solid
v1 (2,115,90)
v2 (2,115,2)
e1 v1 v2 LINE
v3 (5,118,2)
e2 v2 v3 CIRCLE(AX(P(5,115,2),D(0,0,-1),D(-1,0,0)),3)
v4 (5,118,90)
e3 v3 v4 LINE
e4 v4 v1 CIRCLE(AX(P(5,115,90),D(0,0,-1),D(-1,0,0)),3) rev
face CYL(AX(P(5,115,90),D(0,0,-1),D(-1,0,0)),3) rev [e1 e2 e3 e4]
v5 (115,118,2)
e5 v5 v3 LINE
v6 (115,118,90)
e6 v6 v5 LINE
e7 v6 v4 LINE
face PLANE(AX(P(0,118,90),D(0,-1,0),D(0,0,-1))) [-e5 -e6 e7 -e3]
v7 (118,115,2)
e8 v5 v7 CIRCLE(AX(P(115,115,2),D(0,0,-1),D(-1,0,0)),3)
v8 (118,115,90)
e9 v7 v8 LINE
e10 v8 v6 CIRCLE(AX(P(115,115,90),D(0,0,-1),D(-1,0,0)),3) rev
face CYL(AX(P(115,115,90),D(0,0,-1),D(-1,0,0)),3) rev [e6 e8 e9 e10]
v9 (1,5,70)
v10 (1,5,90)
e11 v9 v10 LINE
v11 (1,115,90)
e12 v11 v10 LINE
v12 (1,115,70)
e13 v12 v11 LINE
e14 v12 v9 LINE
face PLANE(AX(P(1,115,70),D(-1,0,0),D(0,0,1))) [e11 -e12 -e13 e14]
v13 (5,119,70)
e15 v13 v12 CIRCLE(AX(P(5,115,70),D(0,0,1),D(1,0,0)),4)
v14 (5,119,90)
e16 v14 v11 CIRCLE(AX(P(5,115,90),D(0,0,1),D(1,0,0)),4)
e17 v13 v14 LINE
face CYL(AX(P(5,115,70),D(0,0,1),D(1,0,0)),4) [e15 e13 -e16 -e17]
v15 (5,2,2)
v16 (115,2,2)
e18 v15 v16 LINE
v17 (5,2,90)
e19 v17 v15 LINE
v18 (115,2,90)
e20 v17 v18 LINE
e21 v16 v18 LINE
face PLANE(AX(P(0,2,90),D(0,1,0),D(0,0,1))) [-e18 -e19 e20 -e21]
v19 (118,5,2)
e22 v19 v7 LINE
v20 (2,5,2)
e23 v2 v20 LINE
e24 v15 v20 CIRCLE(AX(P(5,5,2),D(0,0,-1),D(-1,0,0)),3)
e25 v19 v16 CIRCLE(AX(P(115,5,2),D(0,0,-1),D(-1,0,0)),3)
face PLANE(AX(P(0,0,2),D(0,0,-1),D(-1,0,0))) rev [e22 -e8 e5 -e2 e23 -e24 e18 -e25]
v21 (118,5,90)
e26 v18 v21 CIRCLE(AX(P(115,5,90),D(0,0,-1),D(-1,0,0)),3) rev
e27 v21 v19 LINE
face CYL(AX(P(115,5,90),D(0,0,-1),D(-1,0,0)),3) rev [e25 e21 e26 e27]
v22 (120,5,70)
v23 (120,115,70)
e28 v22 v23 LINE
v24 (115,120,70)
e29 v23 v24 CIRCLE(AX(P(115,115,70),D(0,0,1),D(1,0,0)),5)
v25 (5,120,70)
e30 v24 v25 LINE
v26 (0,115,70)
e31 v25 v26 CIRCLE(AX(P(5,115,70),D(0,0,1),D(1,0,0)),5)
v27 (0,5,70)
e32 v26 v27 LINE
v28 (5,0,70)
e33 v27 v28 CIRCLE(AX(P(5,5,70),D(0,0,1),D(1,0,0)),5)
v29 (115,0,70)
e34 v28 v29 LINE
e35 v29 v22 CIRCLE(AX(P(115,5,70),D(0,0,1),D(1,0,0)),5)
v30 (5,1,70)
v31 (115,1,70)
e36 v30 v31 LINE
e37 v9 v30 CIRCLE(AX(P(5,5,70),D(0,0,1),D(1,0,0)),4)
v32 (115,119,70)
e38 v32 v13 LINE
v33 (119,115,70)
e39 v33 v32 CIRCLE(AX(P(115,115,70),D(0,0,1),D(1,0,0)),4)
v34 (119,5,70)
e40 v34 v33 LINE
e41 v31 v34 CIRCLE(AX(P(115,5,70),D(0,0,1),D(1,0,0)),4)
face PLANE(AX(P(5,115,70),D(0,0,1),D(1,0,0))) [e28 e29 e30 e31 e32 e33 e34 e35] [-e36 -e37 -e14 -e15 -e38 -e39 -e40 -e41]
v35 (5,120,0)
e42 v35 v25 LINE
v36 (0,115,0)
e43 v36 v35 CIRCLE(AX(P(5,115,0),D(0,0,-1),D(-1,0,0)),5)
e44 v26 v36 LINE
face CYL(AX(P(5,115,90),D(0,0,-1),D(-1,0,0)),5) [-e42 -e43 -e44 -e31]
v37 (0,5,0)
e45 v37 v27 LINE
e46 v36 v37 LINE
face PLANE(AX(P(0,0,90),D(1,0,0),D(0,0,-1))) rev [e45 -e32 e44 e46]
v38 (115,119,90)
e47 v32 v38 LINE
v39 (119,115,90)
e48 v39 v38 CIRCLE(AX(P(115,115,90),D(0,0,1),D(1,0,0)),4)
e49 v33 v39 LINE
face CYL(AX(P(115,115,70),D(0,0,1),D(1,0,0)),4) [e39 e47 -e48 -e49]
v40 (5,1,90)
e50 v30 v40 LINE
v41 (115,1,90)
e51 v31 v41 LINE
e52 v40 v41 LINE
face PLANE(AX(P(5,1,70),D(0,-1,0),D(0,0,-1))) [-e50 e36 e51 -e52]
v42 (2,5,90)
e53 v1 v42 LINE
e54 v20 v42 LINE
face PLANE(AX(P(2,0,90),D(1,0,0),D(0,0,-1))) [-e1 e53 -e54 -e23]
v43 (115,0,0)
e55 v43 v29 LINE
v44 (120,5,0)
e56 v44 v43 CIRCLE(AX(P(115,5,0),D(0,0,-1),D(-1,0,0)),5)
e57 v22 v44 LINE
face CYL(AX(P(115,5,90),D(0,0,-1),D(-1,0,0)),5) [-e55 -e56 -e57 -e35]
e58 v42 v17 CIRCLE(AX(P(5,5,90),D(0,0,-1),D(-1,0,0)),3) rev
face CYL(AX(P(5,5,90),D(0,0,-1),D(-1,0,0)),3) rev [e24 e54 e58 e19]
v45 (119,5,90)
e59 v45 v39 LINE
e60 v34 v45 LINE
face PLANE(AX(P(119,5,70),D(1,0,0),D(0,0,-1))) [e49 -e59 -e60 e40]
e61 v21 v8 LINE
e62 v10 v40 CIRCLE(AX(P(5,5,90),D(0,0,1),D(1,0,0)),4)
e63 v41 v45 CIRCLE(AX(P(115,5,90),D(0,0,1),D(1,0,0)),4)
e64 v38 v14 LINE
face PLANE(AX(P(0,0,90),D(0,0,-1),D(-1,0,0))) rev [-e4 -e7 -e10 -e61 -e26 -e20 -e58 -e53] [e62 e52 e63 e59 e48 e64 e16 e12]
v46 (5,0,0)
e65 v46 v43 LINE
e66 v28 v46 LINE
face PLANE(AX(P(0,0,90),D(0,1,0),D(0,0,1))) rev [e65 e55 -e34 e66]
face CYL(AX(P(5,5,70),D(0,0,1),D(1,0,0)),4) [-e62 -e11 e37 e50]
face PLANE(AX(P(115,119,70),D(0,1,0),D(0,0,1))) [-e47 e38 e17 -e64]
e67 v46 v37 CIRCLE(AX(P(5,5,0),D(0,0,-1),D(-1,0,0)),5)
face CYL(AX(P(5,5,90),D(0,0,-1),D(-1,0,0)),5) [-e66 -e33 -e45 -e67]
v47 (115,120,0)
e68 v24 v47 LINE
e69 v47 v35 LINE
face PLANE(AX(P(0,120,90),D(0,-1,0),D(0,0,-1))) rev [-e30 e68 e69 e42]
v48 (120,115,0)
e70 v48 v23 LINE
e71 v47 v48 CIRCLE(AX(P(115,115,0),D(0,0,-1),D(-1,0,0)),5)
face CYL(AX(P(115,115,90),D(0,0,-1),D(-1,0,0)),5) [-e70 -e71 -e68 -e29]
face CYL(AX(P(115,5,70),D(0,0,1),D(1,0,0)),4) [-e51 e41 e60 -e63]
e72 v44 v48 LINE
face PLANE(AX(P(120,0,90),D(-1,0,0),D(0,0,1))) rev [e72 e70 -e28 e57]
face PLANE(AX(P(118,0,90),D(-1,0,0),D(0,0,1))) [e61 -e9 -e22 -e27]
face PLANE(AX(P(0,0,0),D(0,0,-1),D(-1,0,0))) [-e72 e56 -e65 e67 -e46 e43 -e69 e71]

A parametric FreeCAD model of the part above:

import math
import FreeCAD as App
import Part
import Sketcher

V = App.Vector


def edges_at(feature, points):
    """Names of the edges that pass closest to the given points."""
    edges = feature.Shape.Edges
    near = lambda p: min(range(len(edges)), key=lambda i: edges[i].distToShape(Part.Vertex(*p))[0])
    return sorted({f"Edge{near(p) + 1}" for p in points})


def faces_at(feature, points):
    """Names of the faces that lie closest to the given points."""
    faces = feature.Shape.Faces
    near = lambda p: min(range(len(faces)), key=lambda i: faces[i].distToShape(Part.Vertex(*p))[0])
    return sorted({f"Face{near(p) + 1}" for p in points})


def add_polygon(sketch, points):
    """Adds a closed chain of lines whose ends are joined by coincident constraints."""
    first, n = sketch.GeometryCount, len(points)
    for a, b in zip(points, points[1:] + points[:1]):
        sketch.addGeometry(Part.LineSegment(App.Vector(*a, 0), App.Vector(*b, 0)), False)
    for i in range(n):
        sketch.addConstraint(Sketcher.Constraint("Coincident", first + i, 2, first + (i + 1) % n, 1))

doc = App.newDocument("Part")
body = doc.addObject("PartDesign::Body", "Body")

# Sketch on XY plane
sketch1 = doc.addObject("Sketcher::SketchObject", "Sketch")
body.addObject(sketch1)
sketch1.AttachmentSupport = (doc.XY_Plane, [""])
sketch1.MapMode = "FlatFace"
add_polygon(sketch1, [(0, 120), (0, 0), (120, 0), (120, 120)])  # lines 0-3
sketch1.addConstraint(Sketcher.Constraint("Vertical", 0))
sketch1.addConstraint(Sketcher.Constraint("Horizontal", 1))
sketch1.addConstraint(Sketcher.Constraint("Vertical", 2))
sketch1.addConstraint(Sketcher.Constraint("Horizontal", 3))
sketch1.addConstraint(Sketcher.Constraint("Coincident", 0, 2, -1, 1))
sketch1.addConstraint(Sketcher.Constraint("Equal", 3, 0))
sketch1.addConstraint(Sketcher.Constraint("DistanceX", 1, 1, 1, 2, 120.0))
pad1 = doc.addObject("PartDesign::Pad", "Pad")
body.addObject(pad1)
pad1.Profile = sketch1
pad1.Length = 90
doc.recompute()

fillet = doc.addObject("PartDesign::Fillet", "Fillet")
body.addObject(fillet)
fillet.Base = (pad1, edges_at(pad1, [
    (0, 120, 45),
    (120, 120, 45),
    (120, 0, 45),
    (0, 0, 45),
]))
fillet.Radius = 5
doc.recompute()

thickness = doc.addObject("PartDesign::Thickness", "Thickness")
body.addObject(thickness)
thickness.Base = (fillet, faces_at(fillet, [(60, 60, 90)]))
thickness.Value = 2
thickness.Reversed = True
thickness.Join = "Intersection"

# Sketch on XY plane
sketch2 = doc.addObject("Sketcher::SketchObject", "Sketch001")
body.addObject(sketch2)
sketch2.AttachmentSupport = (doc.XY_Plane, [""])
sketch2.MapMode = "FlatFace"
sketch2.AttachmentOffset = App.Placement(V(0, 0, 90), App.Rotation())
sketch2.addGeometry(Part.LineSegment(V(0, 115, 0), V(0, 5, 0)), False)
sketch2.addGeometry(Part.ArcOfCircle(Part.Circle(V(5, 5, 0), V(0, 0, 1), 5), math.radians(180), math.radians(270)), False)
sketch2.addGeometry(Part.LineSegment(V(5, 0, 0), V(115, 0, 0)), False)
sketch2.addGeometry(Part.ArcOfCircle(Part.Circle(V(115, 5, 0), V(0, 0, 1), 5), math.radians(-90), math.radians(0)), False)
sketch2.addGeometry(Part.LineSegment(V(120, 5, 0), V(120, 115, 0)), False)
sketch2.addGeometry(Part.ArcOfCircle(Part.Circle(V(115, 115, 0), V(0, 0, 1), 5), math.radians(0), math.radians(90)), False)
sketch2.addGeometry(Part.LineSegment(V(115, 120, 0), V(5, 120, 0)), False)
sketch2.addGeometry(Part.ArcOfCircle(Part.Circle(V(5, 115, 0), V(0, 0, 1), 5), math.radians(90), math.radians(180)), False)
sketch2.addGeometry(Part.LineSegment(V(1, 5, 0), V(1, 115, 0)), False)
sketch2.addGeometry(Part.ArcOfCircle(Part.Circle(V(5, 115, 0), V(0, 0, 1), 4), math.radians(90), math.radians(180)), False)
sketch2.addGeometry(Part.LineSegment(V(5, 119, 0), V(115, 119, 0)), False)
sketch2.addGeometry(Part.ArcOfCircle(Part.Circle(V(115, 115, 0), V(0, 0, 1), 4), math.radians(0), math.radians(90)), False)
sketch2.addGeometry(Part.LineSegment(V(119, 115, 0), V(119, 5, 0)), False)
sketch2.addGeometry(Part.ArcOfCircle(Part.Circle(V(115, 5, 0), V(0, 0, 1), 4), math.radians(-90), math.radians(0)), False)
sketch2.addGeometry(Part.LineSegment(V(115, 1, 0), V(5, 1, 0)), False)
sketch2.addGeometry(Part.ArcOfCircle(Part.Circle(V(5, 5, 0), V(0, 0, 1), 4), math.radians(180), math.radians(270)), False)
sketch2.addConstraint(Sketcher.Constraint("Tangent", 0, 2, 1, 1))
sketch2.addConstraint(Sketcher.Constraint("Tangent", 1, 2, 2, 1))
sketch2.addConstraint(Sketcher.Constraint("Tangent", 2, 2, 3, 1))
sketch2.addConstraint(Sketcher.Constraint("Tangent", 3, 2, 4, 1))
sketch2.addConstraint(Sketcher.Constraint("Tangent", 4, 2, 5, 1))
sketch2.addConstraint(Sketcher.Constraint("Tangent", 5, 2, 6, 1))
sketch2.addConstraint(Sketcher.Constraint("Tangent", 6, 2, 7, 1))
sketch2.addConstraint(Sketcher.Constraint("Tangent", 7, 2, 0, 1))
sketch2.addConstraint(Sketcher.Constraint("Tangent", 8, 2, 9, 2))
sketch2.addConstraint(Sketcher.Constraint("Tangent", 9, 1, 10, 1))
sketch2.addConstraint(Sketcher.Constraint("Tangent", 10, 2, 11, 2))
sketch2.addConstraint(Sketcher.Constraint("Tangent", 11, 1, 12, 1))
sketch2.addConstraint(Sketcher.Constraint("Tangent", 12, 2, 13, 2))
sketch2.addConstraint(Sketcher.Constraint("Tangent", 13, 1, 14, 1))
sketch2.addConstraint(Sketcher.Constraint("Tangent", 14, 2, 15, 2))
sketch2.addConstraint(Sketcher.Constraint("Tangent", 15, 1, 8, 1))
sketch2.addConstraint(Sketcher.Constraint("Vertical", 0))
sketch2.addConstraint(Sketcher.Constraint("Horizontal", 2))
sketch2.addConstraint(Sketcher.Constraint("Vertical", 4))
sketch2.addConstraint(Sketcher.Constraint("Horizontal", 6))
sketch2.addConstraint(Sketcher.Constraint("Vertical", 8))
sketch2.addConstraint(Sketcher.Constraint("Horizontal", 10))
sketch2.addConstraint(Sketcher.Constraint("Vertical", 12))
sketch2.addConstraint(Sketcher.Constraint("Horizontal", 14))
sketch2.addConstraint(Sketcher.Constraint("Coincident", 9, 3, 7, 3))
sketch2.addConstraint(Sketcher.Constraint("Coincident", 11, 3, 5, 3))
sketch2.addConstraint(Sketcher.Constraint("Coincident", 13, 3, 3, 3))
sketch2.addConstraint(Sketcher.Constraint("Equal", 1, 3))
sketch2.addConstraint(Sketcher.Constraint("Equal", 3, 5))
sketch2.addConstraint(Sketcher.Constraint("Equal", 5, 7))
sketch2.addConstraint(Sketcher.Constraint("Equal", 13, 15))
sketch2.addConstraint(Sketcher.Constraint("PointOnObject", 0, 2, -2))
sketch2.addConstraint(Sketcher.Constraint("PointOnObject", 1, 2, -1))
sketch2.addConstraint(Sketcher.Constraint("Equal", 14, 0))
sketch2.addConstraint(Sketcher.Constraint("Radius", 1, 5.0))
sketch2.addConstraint(Sketcher.Constraint("Radius", 9, 4.0))
sketch2.addConstraint(Sketcher.Constraint("DistanceX", 2, 1, 2, 2, 110.0))
pocket1 = doc.addObject("PartDesign::Pocket", "Pocket")
body.addObject(pocket1)
pocket1.Profile = sketch2
pocket1.Length = 20

doc.recompute()
